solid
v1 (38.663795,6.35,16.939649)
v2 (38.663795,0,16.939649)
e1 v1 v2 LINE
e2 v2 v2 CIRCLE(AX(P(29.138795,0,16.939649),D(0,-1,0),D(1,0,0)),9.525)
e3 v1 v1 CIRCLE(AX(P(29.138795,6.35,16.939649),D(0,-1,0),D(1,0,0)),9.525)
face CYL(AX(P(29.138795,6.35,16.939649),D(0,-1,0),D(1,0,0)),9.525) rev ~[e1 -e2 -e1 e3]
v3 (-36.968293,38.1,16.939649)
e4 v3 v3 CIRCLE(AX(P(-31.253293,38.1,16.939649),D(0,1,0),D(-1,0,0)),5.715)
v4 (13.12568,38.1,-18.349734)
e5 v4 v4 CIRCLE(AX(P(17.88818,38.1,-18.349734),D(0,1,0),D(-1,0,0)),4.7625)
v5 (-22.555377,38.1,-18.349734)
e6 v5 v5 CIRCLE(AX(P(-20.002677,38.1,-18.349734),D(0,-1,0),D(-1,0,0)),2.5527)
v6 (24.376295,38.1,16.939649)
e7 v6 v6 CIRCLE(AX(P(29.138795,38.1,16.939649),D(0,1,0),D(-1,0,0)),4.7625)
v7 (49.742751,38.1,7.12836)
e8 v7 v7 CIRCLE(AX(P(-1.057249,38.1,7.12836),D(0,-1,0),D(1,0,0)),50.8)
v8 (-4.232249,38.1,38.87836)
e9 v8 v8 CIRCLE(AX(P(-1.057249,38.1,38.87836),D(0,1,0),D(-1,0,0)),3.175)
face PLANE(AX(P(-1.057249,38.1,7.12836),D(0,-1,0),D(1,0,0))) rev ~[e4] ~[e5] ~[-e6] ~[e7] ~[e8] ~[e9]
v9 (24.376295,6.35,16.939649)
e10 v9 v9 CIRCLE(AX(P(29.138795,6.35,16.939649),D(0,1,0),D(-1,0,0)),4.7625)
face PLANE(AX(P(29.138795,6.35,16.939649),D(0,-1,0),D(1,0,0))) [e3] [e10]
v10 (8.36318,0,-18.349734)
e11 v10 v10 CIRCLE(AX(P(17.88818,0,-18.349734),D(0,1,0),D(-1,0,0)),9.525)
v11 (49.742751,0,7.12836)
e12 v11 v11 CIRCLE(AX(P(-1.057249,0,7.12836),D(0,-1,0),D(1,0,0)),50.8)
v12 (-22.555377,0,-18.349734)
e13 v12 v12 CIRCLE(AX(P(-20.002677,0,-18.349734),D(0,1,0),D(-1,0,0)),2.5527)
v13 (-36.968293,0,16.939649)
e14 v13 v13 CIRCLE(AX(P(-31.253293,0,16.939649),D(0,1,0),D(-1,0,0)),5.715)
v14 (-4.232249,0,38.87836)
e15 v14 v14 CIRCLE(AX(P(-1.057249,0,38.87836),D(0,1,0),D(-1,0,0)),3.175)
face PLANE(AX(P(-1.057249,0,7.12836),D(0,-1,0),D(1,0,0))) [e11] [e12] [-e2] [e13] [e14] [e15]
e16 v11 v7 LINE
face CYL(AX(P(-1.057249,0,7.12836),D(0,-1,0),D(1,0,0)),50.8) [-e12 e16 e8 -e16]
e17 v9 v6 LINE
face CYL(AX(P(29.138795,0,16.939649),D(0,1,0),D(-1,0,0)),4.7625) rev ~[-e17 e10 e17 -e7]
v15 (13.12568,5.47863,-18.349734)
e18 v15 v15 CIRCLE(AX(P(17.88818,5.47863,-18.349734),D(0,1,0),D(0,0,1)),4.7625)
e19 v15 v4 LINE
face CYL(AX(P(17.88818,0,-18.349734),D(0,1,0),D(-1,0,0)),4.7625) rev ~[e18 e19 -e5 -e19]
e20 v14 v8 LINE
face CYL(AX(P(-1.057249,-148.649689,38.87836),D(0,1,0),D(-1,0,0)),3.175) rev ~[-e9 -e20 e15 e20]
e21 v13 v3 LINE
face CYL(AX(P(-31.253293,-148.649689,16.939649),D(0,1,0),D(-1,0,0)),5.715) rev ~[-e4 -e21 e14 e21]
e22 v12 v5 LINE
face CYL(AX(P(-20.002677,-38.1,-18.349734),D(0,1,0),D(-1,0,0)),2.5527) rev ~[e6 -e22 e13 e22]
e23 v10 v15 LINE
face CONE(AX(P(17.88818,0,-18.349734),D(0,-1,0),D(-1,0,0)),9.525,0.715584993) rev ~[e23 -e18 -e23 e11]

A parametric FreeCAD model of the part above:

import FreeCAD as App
import Part
import Sketcher
from FreeCAD import Vector
Q = App.Units.Quantity

doc = App.newDocument("Part")
params = doc.addObject("Spreadsheet::Sheet", "Params")
for row, (alias, value) in enumerate([
    ("sketch1_diameter", "4 in"),
    ("pad1_length", "1.5 in"),
    ("sketch2_diameter", "0.25 in"),
    ("hole_diameter", "0.25 in"),
    ("sketch3_diameter", "0.375 in"),
    ("hole2_diameter", "0.375 in"),
    ("hole2_cbore_diameter", "0.75 in"),
    ("hole2_cbore_depth", "0.25 in"),
    ("sketch4_diameter", "0.375 in"),
    ("hole3_diameter", "0.375 in"),
    ("hole3_csink_diameter", "0.75 in"),
    ("sketch5_diameter", "0.201 in"),
    ("hole4_diameter", "0.201 in"),
    ("hole4_depth", "1.5 in"),
    ("sketch6_diameter", "0.45 in"),
    ("hole5_diameter", "0.45 in"),
], start=1):
    params.set(f"A{row}", alias)
    params.set(f"B{row}", "=" + value)
    params.setAlias(f"B{row}", alias)

body = doc.addObject("PartDesign::Body", "Body")

# Sketch on XZ plane
sketch1 = body.newObject("Sketcher::SketchObject", "Sketch")
sketch1.AttachmentSupport = (doc.getObject("XZ_Plane"), [""])
sketch1.MapMode = "FlatFace"
sketch1.addGeometry(Part.Circle(Vector(-1, 7, 0), Vector(0, 0, 1), 51), False)
sketch1.addConstraint([
    Sketcher.Constraint("Diameter", 0, Q("4 in")),
    Sketcher.Constraint("DistanceX", 0, 3, -1, 1, 1.057249),
    Sketcher.Constraint("DistanceY", -1, 1, 0, 3, 7.12836),
])
sketch1.setExpression("Constraints[0]", "Params.sketch1_diameter")
pad1 = body.newObject("PartDesign::Pad", "Pad")
pad1.Profile = sketch1
pad1.setExpression("Length", "Params.pad1_length")
pad1.Reversed = True

# Sketch on XZ plane
sketch2 = body.newObject("Sketcher::SketchObject", "Sketch001")
sketch2.AttachmentSupport = (doc.getObject("XZ_Plane"), [""])
sketch2.MapMode = "FlatFace"
sketch2.addGeometry(Part.Circle(Vector(-1.1, 38.9, 0), Vector(0, 0, 1), 3.2), False)
sketch2.addConstraint([
    Sketcher.Constraint("Diameter", 0, Q("0.25 in")),
    Sketcher.Constraint("DistanceX", 0, 3, -1, 1, 1.057249),
    Sketcher.Constraint("DistanceY", -1, 1, 0, 3, 38.87836),
])
sketch2.setExpression("Constraints[0]", "Params.sketch2_diameter")
doc.recompute()
hole = body.newObject("PartDesign::Hole", "Hole")
hole.Profile = sketch2
hole.ThreadType = "None"
hole.setExpression("Diameter", "Params.hole_diameter")
hole.DepthType = "ThroughAll"

# Sketch on XZ plane
sketch3 = body.newObject("Sketcher::SketchObject", "Sketch002")
sketch3.AttachmentSupport = (doc.getObject("XZ_Plane"), [""])
sketch3.MapMode = "FlatFace"
sketch3.addGeometry(Part.Circle(Vector(29.1, 16.9, 0), Vector(0, 0, 1), 4.8), False)
sketch3.addConstraint([
    Sketcher.Constraint("Diameter", 0, Q("0.375 in")),
    Sketcher.Constraint("DistanceY", -1, 1, 0, 3, 16.939649),
    Sketcher.Constraint("DistanceX", -1, 1, 0, 3, 29.138795),
])
sketch3.setExpression("Constraints[0]", "Params.sketch3_diameter")
doc.recompute()
hole2 = body.newObject("PartDesign::Hole", "Hole001")
hole2.Profile = sketch3
hole2.ThreadType = "None"
hole2.setExpression("Diameter", "Params.hole2_diameter")
hole2.DepthType = "ThroughAll"
hole2.HoleCutType = "Counterbore"
hole2.setExpression("HoleCutDiameter", "Params.hole2_cbore_diameter")
hole2.setExpression("HoleCutDepth", "Params.hole2_cbore_depth")

# Sketch on XZ plane
sketch4 = body.newObject("Sketcher::SketchObject", "Sketch003")
sketch4.AttachmentSupport = (doc.getObject("XZ_Plane"), [""])
sketch4.MapMode = "FlatFace"
sketch4.addGeometry(Part.Circle(Vector(17.9, -18.3, 0), Vector(0, 0, 1), 4.8), False)
sketch4.addConstraint([
    Sketcher.Constraint("Diameter", 0, Q("0.375 in")),
    Sketcher.Constraint("DistanceX", -1, 1, 0, 3, 17.88818),
    Sketcher.Constraint("DistanceY", 0, 3, -1, 1, 18.349734),
])
sketch4.setExpression("Constraints[0]", "Params.sketch4_diameter")
doc.recompute()
hole3 = body.newObject("PartDesign::Hole", "Hole002")
hole3.Profile = sketch4
hole3.ThreadType = "None"
hole3.setExpression("Diameter", "Params.hole3_diameter")
hole3.DepthType = "ThroughAll"
hole3.HoleCutType = "Countersink"
hole3.setExpression("HoleCutDiameter", "Params.hole3_csink_diameter")
hole3.HoleCutCountersinkAngle = 82

# Sketch on XZ plane
sketch5 = body.newObject("Sketcher::SketchObject", "Sketch004")
sketch5.AttachmentSupport = (doc.getObject("XZ_Plane"), [""])
sketch5.MapMode = "FlatFace"
sketch5.addGeometry(Part.Circle(Vector(-20, -18.3, 0), Vector(0, 0, 1), 2.6), False)
sketch5.addConstraint([
    Sketcher.Constraint("Diameter", 0, Q("0.201 in")),
    Sketcher.Constraint("DistanceX", 0, 3, -1, 1, 20.002677),
    Sketcher.Constraint("DistanceY", 0, 3, -1, 1, 18.349734),
])
sketch5.setExpression("Constraints[0]", "Params.sketch5_diameter")
doc.recompute()
hole4 = body.newObject("PartDesign::Hole", "Hole003")
hole4.Profile = sketch5
hole4.ThreadType = "None"
hole4.setExpression("Diameter", "Params.hole4_diameter")
hole4.DepthType = "Dimension"
hole4.setExpression("Depth", "Params.hole4_depth")
hole4.DrillPoint = "Angled"
hole4.DrillPointAngle = 118

# Sketch on XZ plane
sketch6 = body.newObject("Sketcher::SketchObject", "Sketch005")
sketch6.AttachmentSupport = (doc.getObject("XZ_Plane"), [""])
sketch6.MapMode = "FlatFace"
sketch6.addGeometry(Part.Circle(Vector(-31, 17, 0), Vector(0, 0, 1), 6), False)
sketch6.addConstraint([
    Sketcher.Constraint("Diameter", 0, Q("0.45 in")),
    Sketcher.Constraint("DistanceY", -1, 1, 0, 3, 16.939649),
    Sketcher.Constraint("DistanceX", 0, 3, -1, 1, 31.253293),
])
sketch6.setExpression("Constraints[0]", "Params.sketch6_diameter")
doc.recompute()
hole5 = body.newObject("PartDesign::Hole", "Hole004")
hole5.Profile = sketch6
hole5.ThreadType = "None"
hole5.setExpression("Diameter", "Params.hole5_diameter")
hole5.DepthType = "ThroughAll"

doc.recompute()
